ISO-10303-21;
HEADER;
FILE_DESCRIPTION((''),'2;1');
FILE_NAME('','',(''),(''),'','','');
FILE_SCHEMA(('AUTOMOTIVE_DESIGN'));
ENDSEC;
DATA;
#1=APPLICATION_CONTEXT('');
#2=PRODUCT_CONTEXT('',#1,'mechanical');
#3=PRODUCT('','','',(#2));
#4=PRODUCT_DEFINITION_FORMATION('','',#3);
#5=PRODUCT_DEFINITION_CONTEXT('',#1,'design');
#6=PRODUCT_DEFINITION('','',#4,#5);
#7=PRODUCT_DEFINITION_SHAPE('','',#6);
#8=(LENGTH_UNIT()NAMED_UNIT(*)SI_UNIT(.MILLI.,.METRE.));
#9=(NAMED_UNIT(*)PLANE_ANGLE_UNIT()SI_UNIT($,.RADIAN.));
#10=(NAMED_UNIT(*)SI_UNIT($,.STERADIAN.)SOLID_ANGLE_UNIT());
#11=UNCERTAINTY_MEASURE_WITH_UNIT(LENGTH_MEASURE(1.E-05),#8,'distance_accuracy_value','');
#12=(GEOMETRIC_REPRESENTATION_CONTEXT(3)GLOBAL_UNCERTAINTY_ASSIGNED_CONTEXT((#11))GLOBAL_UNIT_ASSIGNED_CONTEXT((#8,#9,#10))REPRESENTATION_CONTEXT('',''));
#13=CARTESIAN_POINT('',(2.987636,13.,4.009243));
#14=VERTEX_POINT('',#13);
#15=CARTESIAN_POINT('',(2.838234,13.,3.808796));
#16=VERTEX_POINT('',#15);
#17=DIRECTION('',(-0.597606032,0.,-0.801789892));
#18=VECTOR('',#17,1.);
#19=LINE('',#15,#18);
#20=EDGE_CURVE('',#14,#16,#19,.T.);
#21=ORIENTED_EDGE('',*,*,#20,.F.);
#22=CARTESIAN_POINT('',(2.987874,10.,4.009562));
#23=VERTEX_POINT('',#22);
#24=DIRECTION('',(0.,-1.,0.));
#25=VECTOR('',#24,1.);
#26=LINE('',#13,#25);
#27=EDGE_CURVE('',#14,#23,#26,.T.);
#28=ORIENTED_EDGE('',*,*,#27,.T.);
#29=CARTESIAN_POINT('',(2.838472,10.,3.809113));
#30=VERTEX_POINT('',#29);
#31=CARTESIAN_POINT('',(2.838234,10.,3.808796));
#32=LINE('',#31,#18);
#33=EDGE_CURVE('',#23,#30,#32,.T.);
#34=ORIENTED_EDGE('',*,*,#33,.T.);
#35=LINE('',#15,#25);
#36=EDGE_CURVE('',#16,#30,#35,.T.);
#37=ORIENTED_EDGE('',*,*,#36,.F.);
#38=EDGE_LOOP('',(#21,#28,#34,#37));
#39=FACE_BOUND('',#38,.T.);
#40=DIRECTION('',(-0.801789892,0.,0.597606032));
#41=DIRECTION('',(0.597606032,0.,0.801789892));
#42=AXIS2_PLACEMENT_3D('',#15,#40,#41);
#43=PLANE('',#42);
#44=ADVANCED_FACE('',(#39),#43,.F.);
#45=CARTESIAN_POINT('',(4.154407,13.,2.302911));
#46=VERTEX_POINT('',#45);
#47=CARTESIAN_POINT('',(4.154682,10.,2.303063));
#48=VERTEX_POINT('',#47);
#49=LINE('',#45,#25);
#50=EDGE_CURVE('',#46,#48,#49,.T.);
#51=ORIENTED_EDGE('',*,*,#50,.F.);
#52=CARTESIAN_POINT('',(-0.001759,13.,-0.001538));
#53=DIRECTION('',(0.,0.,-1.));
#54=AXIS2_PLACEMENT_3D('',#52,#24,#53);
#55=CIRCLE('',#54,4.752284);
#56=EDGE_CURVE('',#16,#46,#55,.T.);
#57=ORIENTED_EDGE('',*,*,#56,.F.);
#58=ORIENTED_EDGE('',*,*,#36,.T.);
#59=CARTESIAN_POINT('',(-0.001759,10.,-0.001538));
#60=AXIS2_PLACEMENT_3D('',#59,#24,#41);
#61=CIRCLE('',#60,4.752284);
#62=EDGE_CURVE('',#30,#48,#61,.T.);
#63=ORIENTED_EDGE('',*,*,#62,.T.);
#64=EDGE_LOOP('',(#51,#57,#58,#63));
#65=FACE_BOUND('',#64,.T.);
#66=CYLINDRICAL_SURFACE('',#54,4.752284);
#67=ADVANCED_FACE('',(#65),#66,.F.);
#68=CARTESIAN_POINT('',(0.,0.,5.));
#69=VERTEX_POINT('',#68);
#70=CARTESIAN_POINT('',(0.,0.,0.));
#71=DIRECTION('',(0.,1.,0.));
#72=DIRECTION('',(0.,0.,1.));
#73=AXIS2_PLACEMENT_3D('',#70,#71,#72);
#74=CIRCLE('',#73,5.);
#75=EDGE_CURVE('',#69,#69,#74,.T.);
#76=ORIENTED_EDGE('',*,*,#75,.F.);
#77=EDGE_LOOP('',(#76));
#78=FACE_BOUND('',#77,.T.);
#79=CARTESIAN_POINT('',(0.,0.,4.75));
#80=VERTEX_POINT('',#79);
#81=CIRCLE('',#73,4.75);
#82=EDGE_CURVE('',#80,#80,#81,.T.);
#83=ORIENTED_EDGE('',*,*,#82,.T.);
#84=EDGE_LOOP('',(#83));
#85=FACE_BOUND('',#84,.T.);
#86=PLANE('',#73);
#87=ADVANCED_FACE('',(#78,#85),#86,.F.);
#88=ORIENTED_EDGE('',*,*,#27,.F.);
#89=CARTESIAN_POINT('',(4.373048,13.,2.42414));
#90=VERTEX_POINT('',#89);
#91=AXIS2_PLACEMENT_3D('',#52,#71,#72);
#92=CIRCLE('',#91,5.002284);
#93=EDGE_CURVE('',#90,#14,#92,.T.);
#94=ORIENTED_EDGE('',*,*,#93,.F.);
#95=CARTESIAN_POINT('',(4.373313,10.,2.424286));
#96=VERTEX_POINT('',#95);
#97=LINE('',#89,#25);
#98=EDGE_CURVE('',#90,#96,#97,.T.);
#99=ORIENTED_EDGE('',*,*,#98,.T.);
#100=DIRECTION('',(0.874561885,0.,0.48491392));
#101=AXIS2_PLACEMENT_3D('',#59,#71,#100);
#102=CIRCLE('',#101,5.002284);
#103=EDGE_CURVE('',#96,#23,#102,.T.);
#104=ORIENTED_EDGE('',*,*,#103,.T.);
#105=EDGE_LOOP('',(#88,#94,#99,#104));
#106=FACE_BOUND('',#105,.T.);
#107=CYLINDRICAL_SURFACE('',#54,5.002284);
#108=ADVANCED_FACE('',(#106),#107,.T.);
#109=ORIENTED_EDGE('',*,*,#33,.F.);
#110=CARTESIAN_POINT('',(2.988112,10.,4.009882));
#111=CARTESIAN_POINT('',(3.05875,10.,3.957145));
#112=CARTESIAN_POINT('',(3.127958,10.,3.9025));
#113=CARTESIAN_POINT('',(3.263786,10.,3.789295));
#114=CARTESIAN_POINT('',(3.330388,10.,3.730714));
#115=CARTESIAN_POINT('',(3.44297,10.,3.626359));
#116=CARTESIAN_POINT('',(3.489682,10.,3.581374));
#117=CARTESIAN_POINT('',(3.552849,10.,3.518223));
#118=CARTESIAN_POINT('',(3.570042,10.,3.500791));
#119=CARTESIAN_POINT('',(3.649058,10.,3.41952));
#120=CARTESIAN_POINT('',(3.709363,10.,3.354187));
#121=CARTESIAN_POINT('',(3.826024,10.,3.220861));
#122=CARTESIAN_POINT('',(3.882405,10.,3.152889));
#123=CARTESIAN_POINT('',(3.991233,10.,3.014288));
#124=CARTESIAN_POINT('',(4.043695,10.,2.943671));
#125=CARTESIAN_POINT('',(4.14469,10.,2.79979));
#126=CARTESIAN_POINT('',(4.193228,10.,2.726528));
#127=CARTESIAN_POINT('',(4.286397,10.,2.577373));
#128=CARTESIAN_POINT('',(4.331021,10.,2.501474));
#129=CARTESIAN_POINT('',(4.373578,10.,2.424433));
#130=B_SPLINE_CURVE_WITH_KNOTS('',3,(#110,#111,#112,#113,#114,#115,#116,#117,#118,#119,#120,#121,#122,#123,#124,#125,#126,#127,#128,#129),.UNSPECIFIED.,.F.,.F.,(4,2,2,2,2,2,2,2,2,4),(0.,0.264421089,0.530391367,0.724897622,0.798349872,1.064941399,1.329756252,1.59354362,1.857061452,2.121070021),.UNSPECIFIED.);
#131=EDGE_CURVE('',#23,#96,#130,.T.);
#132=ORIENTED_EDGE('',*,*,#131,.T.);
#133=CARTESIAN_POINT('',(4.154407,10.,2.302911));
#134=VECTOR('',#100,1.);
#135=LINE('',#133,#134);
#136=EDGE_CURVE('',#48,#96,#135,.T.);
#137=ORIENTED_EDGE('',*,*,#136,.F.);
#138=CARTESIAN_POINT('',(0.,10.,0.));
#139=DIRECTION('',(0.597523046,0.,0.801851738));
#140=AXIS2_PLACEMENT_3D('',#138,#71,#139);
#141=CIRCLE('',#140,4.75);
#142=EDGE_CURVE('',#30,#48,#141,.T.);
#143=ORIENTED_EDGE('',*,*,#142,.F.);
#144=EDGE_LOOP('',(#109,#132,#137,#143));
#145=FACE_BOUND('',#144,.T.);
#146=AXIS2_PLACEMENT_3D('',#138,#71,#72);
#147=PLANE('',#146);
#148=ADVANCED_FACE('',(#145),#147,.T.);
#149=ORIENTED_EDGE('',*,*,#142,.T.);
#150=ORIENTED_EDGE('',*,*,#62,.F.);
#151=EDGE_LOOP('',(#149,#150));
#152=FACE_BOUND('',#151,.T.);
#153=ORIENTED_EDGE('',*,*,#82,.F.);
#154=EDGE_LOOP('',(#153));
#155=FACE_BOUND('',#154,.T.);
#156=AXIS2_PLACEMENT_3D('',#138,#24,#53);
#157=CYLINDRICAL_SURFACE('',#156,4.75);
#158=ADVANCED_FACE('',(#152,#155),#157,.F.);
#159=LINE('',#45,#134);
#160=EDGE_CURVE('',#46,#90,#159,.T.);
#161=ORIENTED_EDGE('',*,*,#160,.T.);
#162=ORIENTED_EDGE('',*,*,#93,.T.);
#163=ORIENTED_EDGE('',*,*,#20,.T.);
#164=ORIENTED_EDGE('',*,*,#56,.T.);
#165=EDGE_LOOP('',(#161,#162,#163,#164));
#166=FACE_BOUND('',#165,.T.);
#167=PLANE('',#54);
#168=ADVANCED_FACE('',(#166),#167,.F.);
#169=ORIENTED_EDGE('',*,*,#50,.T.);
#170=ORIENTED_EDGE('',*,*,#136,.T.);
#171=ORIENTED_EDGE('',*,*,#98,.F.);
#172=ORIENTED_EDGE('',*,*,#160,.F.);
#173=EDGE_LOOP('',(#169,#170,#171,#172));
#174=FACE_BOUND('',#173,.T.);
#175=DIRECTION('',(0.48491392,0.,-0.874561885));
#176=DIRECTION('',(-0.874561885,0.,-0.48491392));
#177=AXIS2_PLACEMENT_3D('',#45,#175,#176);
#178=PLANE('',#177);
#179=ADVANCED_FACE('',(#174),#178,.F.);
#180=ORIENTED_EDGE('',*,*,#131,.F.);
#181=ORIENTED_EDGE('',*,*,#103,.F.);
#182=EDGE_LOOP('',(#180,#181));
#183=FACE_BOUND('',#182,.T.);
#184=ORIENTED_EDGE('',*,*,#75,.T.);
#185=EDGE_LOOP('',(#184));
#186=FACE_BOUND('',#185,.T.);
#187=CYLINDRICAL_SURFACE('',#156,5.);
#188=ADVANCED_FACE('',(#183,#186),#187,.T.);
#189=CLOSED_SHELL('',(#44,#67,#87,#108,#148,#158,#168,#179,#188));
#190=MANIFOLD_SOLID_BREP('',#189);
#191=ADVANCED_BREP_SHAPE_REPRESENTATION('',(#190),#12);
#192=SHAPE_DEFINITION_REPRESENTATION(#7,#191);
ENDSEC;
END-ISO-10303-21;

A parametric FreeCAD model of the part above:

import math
import FreeCAD as App
import Part
import Sketcher
from FreeCAD import Vector
Q = App.Units.Quantity

doc = App.newDocument("Part")
params = doc.addObject("Spreadsheet::Sheet", "Params")
for row, (alias, value) in enumerate([
    ("sketch1_diameter", "10 mm"),
    ("sketch1_diameter2", "9.5 mm"),
    ("pad1_length", "10 mm"),
    ("sketch2_length", "0.25 mm"),
    ("pad2_length", "3 mm"),
], start=1):
    params.set(f"A{row}", alias)
    params.set(f"B{row}", "=" + value)
    params.setAlias(f"B{row}", alias)

body = doc.addObject("PartDesign::Body", "Body")

# Sketch on XZ plane
sketch1 = body.newObject("Sketcher::SketchObject", "Sketch")
sketch1.AttachmentSupport = (doc.getObject("XZ_Plane"), [""])
sketch1.MapMode = "FlatFace"
sketch1.addGeometry(Part.Circle(Vector(0, 0, 0), Vector(0, 0, 1), 5), False)
sketch1.addGeometry(Part.Circle(Vector(0, 0, 0), Vector(0, 0, 1), 4.8), False)
sketch1.addConstraint(Sketcher.Constraint("Coincident", 0, 3, -1, 1))
sketch1.addConstraint(Sketcher.Constraint("Coincident", 1, 3, -1, 1))
sketch1.addConstraint(Sketcher.Constraint("Diameter", 0, Q("10 mm")))
sketch1.addConstraint(Sketcher.Constraint("Diameter", 1, Q("9.5 mm")))
sketch1.setExpression("Constraints[2]", "Params.sketch1_diameter")
sketch1.setExpression("Constraints[3]", "Params.sketch1_diameter2")
pad1 = body.newObject("PartDesign::Pad", "Pad")
pad1.Profile = sketch1
pad1.setExpression("Length", "Params.pad1_length")
pad1.Reversed = True

# Sketch on XZ plane
sketch2 = body.newObject("Sketcher::SketchObject", "Sketch001")
sketch2.AttachmentSupport = (doc.getObject("XZ_Plane"), [""])
sketch2.MapMode = "FlatFace"
sketch2.AttachmentOffset = App.Placement(Vector(0, 0, -10), App.Rotation())
sketch2.addGeometry(Part.LineSegment(Vector(2.99, 4.01, 0), Vector(2.84, 3.81, 0)), False)
sketch2.addGeometry(Part.ArcOfCircle(Part.Circle(Vector(0, 0, 0), Vector(0, 0, 1), 4.75), math.radians(53), math.radians(389)), False)
sketch2.addGeometry(Part.LineSegment(Vector(4.15, 2.3, 0), Vector(4.37, 2.42, 0)), False)
sketch2.addGeometry(Part.ArcOfCircle(Part.Circle(Vector(0, 0, 0), Vector(0, 0, 1), 5), math.radians(53), math.radians(389)), False)
sketch2.addConstraint(Sketcher.Constraint("Coincident", 0, 2, 1, 1))
sketch2.addConstraint(Sketcher.Constraint("Coincident", 1, 2, 2, 1))
sketch2.addConstraint(Sketcher.Constraint("Coincident", 2, 2, 3, 2))
sketch2.addConstraint(Sketcher.Constraint("Coincident", 3, 1, 0, 1))
sketch2.addConstraint(Sketcher.Constraint("Coincident", 3, 3, 1, 3))
sketch2.addConstraint(Sketcher.Constraint("Distance", 0, Q("0.25 mm")))
sketch2.addConstraint(Sketcher.Constraint("Radius", 1, Q("4.752284 mm")))
sketch2.addConstraint(Sketcher.Constraint("DistanceX", 0, 2, 3, 1, Q("0.149402 mm")))
sketch2.addConstraint(Sketcher.Constraint("DistanceX", 1, 3, -1, 1, Q("0.001759 mm")))
sketch2.addConstraint(Sketcher.Constraint("DistanceY", -1, 1, 1, 2, Q("2.302911 mm")))
sketch2.addConstraint(Sketcher.Constraint("DistanceY", -1, 1, 2, 2, Q("2.42414 mm")))
sketch2.addConstraint(Sketcher.Constraint("DistanceY", 1, 3, 1, 2, Q("2.304449 mm")))
sketch2.addConstraint(Sketcher.Constraint("DistanceX", 3, 1, 1, 2, Q("1.166771 mm")))
sketch2.setExpression("Constraints[5]", "Params.sketch2_length")
pad2 = body.newObject("PartDesign::Pad", "Pad001")
pad2.Profile = sketch2
pad2.setExpression("Length", "Params.pad2_length")
pad2.Reversed = True

doc.recompute()
